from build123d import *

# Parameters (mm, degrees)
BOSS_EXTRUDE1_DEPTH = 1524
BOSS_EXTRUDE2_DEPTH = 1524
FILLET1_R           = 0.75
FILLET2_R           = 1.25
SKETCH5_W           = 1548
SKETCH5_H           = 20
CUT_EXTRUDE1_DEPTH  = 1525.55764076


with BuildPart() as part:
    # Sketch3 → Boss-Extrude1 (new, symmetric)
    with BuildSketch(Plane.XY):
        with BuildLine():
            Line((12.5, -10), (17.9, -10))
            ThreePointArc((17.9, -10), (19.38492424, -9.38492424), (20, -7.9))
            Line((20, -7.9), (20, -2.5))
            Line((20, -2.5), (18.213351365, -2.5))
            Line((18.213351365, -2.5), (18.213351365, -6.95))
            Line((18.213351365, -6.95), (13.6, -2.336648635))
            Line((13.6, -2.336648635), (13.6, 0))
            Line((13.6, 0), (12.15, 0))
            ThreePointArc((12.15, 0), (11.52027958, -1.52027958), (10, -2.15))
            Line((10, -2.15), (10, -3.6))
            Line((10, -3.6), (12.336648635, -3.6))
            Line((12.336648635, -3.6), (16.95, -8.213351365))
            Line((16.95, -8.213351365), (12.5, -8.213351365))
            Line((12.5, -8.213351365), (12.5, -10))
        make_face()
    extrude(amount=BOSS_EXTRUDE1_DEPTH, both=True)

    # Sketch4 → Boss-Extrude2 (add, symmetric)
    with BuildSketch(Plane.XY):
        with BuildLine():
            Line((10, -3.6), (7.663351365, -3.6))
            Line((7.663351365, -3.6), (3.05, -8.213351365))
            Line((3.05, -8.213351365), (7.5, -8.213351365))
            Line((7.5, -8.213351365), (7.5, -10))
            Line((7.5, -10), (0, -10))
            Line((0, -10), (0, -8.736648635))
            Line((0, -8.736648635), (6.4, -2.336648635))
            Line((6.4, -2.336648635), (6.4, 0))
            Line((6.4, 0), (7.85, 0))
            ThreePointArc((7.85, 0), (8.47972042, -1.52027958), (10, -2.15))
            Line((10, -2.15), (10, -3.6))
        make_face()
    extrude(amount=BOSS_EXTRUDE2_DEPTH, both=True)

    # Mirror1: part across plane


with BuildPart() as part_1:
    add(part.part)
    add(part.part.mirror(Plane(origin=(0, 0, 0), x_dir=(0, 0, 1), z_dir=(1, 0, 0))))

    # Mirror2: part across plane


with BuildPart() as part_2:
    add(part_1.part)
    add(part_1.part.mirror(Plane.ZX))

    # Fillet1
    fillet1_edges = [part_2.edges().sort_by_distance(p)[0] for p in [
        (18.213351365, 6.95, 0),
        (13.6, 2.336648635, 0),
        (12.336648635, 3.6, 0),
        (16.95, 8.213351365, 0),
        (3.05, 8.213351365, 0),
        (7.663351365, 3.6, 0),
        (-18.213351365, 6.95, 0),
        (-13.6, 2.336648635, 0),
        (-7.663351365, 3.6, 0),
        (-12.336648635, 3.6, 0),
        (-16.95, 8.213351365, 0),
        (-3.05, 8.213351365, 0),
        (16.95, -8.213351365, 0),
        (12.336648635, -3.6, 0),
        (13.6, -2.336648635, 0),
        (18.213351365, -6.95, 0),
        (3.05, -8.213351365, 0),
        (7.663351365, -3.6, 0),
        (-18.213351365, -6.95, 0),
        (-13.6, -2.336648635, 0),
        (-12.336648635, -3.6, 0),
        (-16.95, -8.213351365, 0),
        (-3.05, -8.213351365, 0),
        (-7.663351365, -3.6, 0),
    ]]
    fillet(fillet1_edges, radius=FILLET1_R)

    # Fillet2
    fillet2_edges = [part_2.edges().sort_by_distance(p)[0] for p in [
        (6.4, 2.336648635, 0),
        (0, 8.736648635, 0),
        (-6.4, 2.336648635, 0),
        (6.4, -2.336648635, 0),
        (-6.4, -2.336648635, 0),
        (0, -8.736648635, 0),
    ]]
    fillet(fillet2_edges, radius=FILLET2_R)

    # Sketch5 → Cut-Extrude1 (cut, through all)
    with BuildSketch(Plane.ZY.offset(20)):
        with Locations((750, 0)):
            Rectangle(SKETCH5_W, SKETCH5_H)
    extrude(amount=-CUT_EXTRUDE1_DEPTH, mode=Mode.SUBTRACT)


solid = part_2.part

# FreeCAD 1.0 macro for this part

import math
import FreeCAD as App
import Part
import Sketcher
Q = App.Units.Quantity


def edges_at(feature, points):
    """Names of the edges that pass closest to the given points."""
    edges = feature.Shape.Edges
    near = lambda p: min(range(len(edges)), key=lambda i: edges[i].distToShape(Part.Vertex(*p))[0])
    return sorted({f"Edge{near(p) + 1}" for p in points})

doc = App.newDocument("Part")
params = doc.addObject("Spreadsheet::Sheet", "Params")
for row, (alias, value) in enumerate([
    ("sketch1_radius", "2.1 mm"),
    ("sketch1_radius2", "2.15 mm"),
    ("sketch1_width", "5.4 mm"),
    ("sketch1_width2", "1.45 mm"),
    ("sketch1_width3", "4.45 mm"),
    ("pad1_length", "3048 mm"),
    ("sketch2_radius", "2.15 mm"),
    ("sketch2_width", "7.5 mm"),
    ("sketch2_width2", "1.45 mm"),
    ("sketch2_width3", "4.45 mm"),
    ("pad2_length", "3048 mm"),
    ("fillet_radius", "0.75 mm"),
    ("fillet2_radius", "1.25 mm"),
    ("sketch3_width", "20 mm"),
    ("sketch3_height", "1548 mm"),
], start=1):
    params.set(f"A{row}", alias)
    params.set(f"B{row}", "=" + value)
    params.setAlias(f"B{row}", alias)

body = doc.addObject("PartDesign::Body", "Body")

sketch1 = doc.addObject("Sketcher::SketchObject", "Sketch")
body.addObject(sketch1)
sketch1.AttachmentSupport = (doc.XY_Plane, [""])
sketch1.MapMode = "FlatFace"
sketch1.addGeometry([
    Part.LineSegment(App.Vector(12.5, -10, 0), App.Vector(17.9, -10, 0)),
    Part.ArcOfCircle(Part.Circle(App.Vector(17.9, -7.9, 0), App.Vector(0, 0, 1), 2.1), math.radians(-90), math.radians(0)),
    Part.LineSegment(App.Vector(20, -7.9, 0), App.Vector(20, -2.5, 0)),
    Part.LineSegment(App.Vector(20, -2.5, 0), App.Vector(18.2, -2.5, 0)),
    Part.LineSegment(App.Vector(18.2, -2.5, 0), App.Vector(18.2, -7, 0)),
    Part.LineSegment(App.Vector(18.2, -7, 0), App.Vector(13.6, -2.3, 0)),
    Part.LineSegment(App.Vector(13.6, -2.3, 0), App.Vector(13.6, 0, 0)),
    Part.LineSegment(App.Vector(13.6, 0, 0), App.Vector(12.2, 0, 0)),
    Part.ArcOfCircle(Part.Circle(App.Vector(10, 0, 0), App.Vector(0, 0, 1), 2.1), math.radians(-90), math.radians(0)),
    Part.LineSegment(App.Vector(10, -2.1, 0), App.Vector(10, -3.6, 0)),
    Part.LineSegment(App.Vector(10, -3.6, 0), App.Vector(12.3, -3.6, 0)),
    Part.LineSegment(App.Vector(12.3, -3.6, 0), App.Vector(16.9, -8.2, 0)),
    Part.LineSegment(App.Vector(16.9, -8.2, 0), App.Vector(12.5, -8.2, 0)),
    Part.LineSegment(App.Vector(12.5, -8.2, 0), App.Vector(12.5, -10, 0)),
], False)
sketch1.addConstraint([
    Sketcher.Constraint("Tangent", 0, 2, 1, 1),
    Sketcher.Constraint("Tangent", 1, 2, 2, 1),
    Sketcher.Constraint("Coincident", 2, 2, 3, 1),
    Sketcher.Constraint("Coincident", 3, 2, 4, 1),
    Sketcher.Constraint("Coincident", 4, 2, 5, 1),
    Sketcher.Constraint("Coincident", 5, 2, 6, 1),
    Sketcher.Constraint("Coincident", 6, 2, 7, 1),
    Sketcher.Constraint("Coincident", 7, 2, 8, 2),
    Sketcher.Constraint("Coincident", 8, 1, 9, 1),
    Sketcher.Constraint("Coincident", 9, 2, 10, 1),
    Sketcher.Constraint("Coincident", 10, 2, 11, 1),
    Sketcher.Constraint("Coincident", 11, 2, 12, 1),
    Sketcher.Constraint("Coincident", 12, 2, 13, 1),
    Sketcher.Constraint("Coincident", 13, 2, 0, 1),
    Sketcher.Constraint("Horizontal", 0),
    Sketcher.Constraint("Vertical", 2),
    Sketcher.Constraint("Horizontal", 3),
    Sketcher.Constraint("Vertical", 4),
    Sketcher.Constraint("Vertical", 6),
    Sketcher.Constraint("Horizontal", 7),
    Sketcher.Constraint("Vertical", 9),
    Sketcher.Constraint("Horizontal", 10),
    Sketcher.Constraint("Horizontal", 12),
    Sketcher.Constraint("Vertical", 13),
    Sketcher.Constraint("PointOnObject", 8, 3, -1),
    Sketcher.Constraint("PointOnObject", 6, 2, -1),
    Sketcher.Constraint("Parallel", 5, 11),
    Sketcher.Constraint("Equal", 0, 2),
    Sketcher.Constraint("Equal", 12, 4),
    Sketcher.Constraint("Equal", 10, 6),
    Sketcher.Constraint("Equal", 7, 9),
    Sketcher.Constraint("Equal", 3, 13),
    Sketcher.Constraint("Equal", 5, 11),
    Sketcher.Constraint("Radius", 1, 2.1),
    Sketcher.Constraint("Angle", 5, Q("135 deg")),
    Sketcher.Constraint("Radius", 8, 2.15),
    Sketcher.Constraint("DistanceX", 0, 1, 0, 2, 5.4),
    Sketcher.Constraint("DistanceX", -1, 1, 8, 3, 10.0),
    Sketcher.Constraint("DistanceY", 0, 2, -1, 1, 10.0),
    Sketcher.Constraint("DistanceX", 7, 2, 7, 1, 1.45),
    Sketcher.Constraint("DistanceX", 12, 2, 12, 1, 4.45),
    Sketcher.Constraint("DistanceX", 3, 2, 3, 1, 1.786649),
])
sketch1.setExpression("Constraints[33]", "Params.sketch1_radius")
sketch1.setExpression("Constraints[35]", "Params.sketch1_radius2")
sketch1.setExpression("Constraints[36]", "Params.sketch1_width")
sketch1.setExpression("Constraints[39]", "Params.sketch1_width2")
sketch1.setExpression("Constraints[40]", "Params.sketch1_width3")
pad1 = doc.addObject("PartDesign::Pad", "Pad")
body.addObject(pad1)
pad1.Profile = sketch1
pad1.setExpression("Length", "Params.pad1_length")
pad1.Midplane = True

sketch2 = doc.addObject("Sketcher::SketchObject", "Sketch001")
body.addObject(sketch2)
sketch2.AttachmentSupport = (doc.XY_Plane, [""])
sketch2.MapMode = "FlatFace"
sketch2.addGeometry([
    Part.LineSegment(App.Vector(7.7, -3.6, 0), App.Vector(10, -3.6, 0)),
    Part.LineSegment(App.Vector(10, -3.6, 0), App.Vector(10, -2.1, 0)),
    Part.ArcOfCircle(Part.Circle(App.Vector(10, 0, 0), App.Vector(0, 0, 1), 2.1), math.radians(180), math.radians(270)),
    Part.LineSegment(App.Vector(7.8, 0, 0), App.Vector(6.4, 0, 0)),
    Part.LineSegment(App.Vector(6.4, 0, 0), App.Vector(6.4, -2.3, 0)),
    Part.LineSegment(App.Vector(6.4, -2.3, 0), App.Vector(0, -8.7, 0)),
    Part.LineSegment(App.Vector(0, -8.7, 0), App.Vector(0, -10, 0)),
    Part.LineSegment(App.Vector(0, -10, 0), App.Vector(7.5, -10, 0)),
    Part.LineSegment(App.Vector(7.5, -10, 0), App.Vector(7.5, -8.2, 0)),
    Part.LineSegment(App.Vector(7.5, -8.2, 0), App.Vector(3, -8.2, 0)),
    Part.LineSegment(App.Vector(3, -8.2, 0), App.Vector(7.7, -3.6, 0)),
], False)
sketch2.addConstraint([
    Sketcher.Constraint("Coincident", 0, 2, 1, 1),
    Sketcher.Constraint("Coincident", 1, 2, 2, 2),
    Sketcher.Constraint("Coincident", 2, 1, 3, 1),
    Sketcher.Constraint("Coincident", 3, 2, 4, 1),
    Sketcher.Constraint("Coincident", 4, 2, 5, 1),
    Sketcher.Constraint("Coincident", 5, 2, 6, 1),
    Sketcher.Constraint("Coincident", 6, 2, 7, 1),
    Sketcher.Constraint("Coincident", 7, 2, 8, 1),
    Sketcher.Constraint("Coincident", 8, 2, 9, 1),
    Sketcher.Constraint("Coincident", 9, 2, 10, 1),
    Sketcher.Constraint("Coincident", 10, 2, 0, 1),
    Sketcher.Constraint("Horizontal", 0),
    Sketcher.Constraint("Vertical", 1),
    Sketcher.Constraint("Horizontal", 3),
    Sketcher.Constraint("Vertical", 4),
    Sketcher.Constraint("Vertical", 6),
    Sketcher.Constraint("Horizontal", 7),
    Sketcher.Constraint("Vertical", 8),
    Sketcher.Constraint("Horizontal", 9),
    Sketcher.Constraint("PointOnObject", 2, 3, -1),
    Sketcher.Constraint("PointOnObject", 2, 1, -1),
    Sketcher.Constraint("PointOnObject", 5, 2, -2),
    Sketcher.Constraint("Parallel", 5, 10),
    Sketcher.Constraint("Vertical", 2, 3, 0, 2),
    Sketcher.Constraint("Equal", 3, 1),
    Sketcher.Constraint("Equal", 0, 4),
    Sketcher.Constraint("Angle", 5, Q("-135 deg")),
    Sketcher.Constraint("Radius", 2, 2.15),
    Sketcher.Constraint("DistanceX", 7, 1, 7, 2, 7.5),
    Sketcher.Constraint("DistanceX", -1, 1, 2, 3, 10.0),
    Sketcher.Constraint("DistanceY", 6, 2, -1, 1, 10.0),
    Sketcher.Constraint("DistanceX", 3, 2, 3, 1, 1.45),
    Sketcher.Constraint("DistanceX", 9, 2, 9, 1, 4.45),
    Sketcher.Constraint("DistanceX", 0, 1, 0, 2, 2.336649),
])
sketch2.setExpression("Constraints[27]", "Params.sketch2_radius")
sketch2.setExpression("Constraints[28]", "Params.sketch2_width")
sketch2.setExpression("Constraints[31]", "Params.sketch2_width2")
sketch2.setExpression("Constraints[32]", "Params.sketch2_width3")
pad2 = doc.addObject("PartDesign::Pad", "Pad001")
body.addObject(pad2)
pad2.Profile = sketch2
pad2.setExpression("Length", "Params.pad2_length")
pad2.Midplane = True
body2 = doc.addObject("PartDesign::Body", "Body001")
doc.recompute()

body2.BaseFeature = body
doc.recompute()

mirroring = doc.addObject("Part::Mirroring", "Mirroring")
mirroring.Source = body
mirroring.Base = App.Vector(0, 0, 0)
mirroring.Normal = App.Vector(1, 0, 0)
body3 = doc.addObject("PartDesign::Body", "Body002")
body3.BaseFeature = mirroring
boolean = doc.addObject("PartDesign::Boolean", "Boolean")
body2.addObject(boolean)
boolean.Type = "Fuse"
boolean.addObjects([body3])
doc.recompute()
body4 = doc.addObject("PartDesign::Body", "Body003")
doc.recompute()

body4.BaseFeature = body2
doc.recompute()

mirroring2 = doc.addObject("Part::Mirroring", "Mirroring001")
mirroring2.Source = body2
mirroring2.Base = App.Vector(0, 0, 0)
mirroring2.Normal = App.Vector(0, 1, 0)
body5 = doc.addObject("PartDesign::Body", "Body004")
body5.BaseFeature = mirroring2
boolean2 = doc.addObject("PartDesign::Boolean", "Boolean001")
body4.addObject(boolean2)
boolean2.Type = "Fuse"
boolean2.addObjects([body5])
doc.recompute()

fillet = doc.addObject("PartDesign::Fillet", "Fillet")
body4.addObject(fillet)
fillet.Base = (boolean2, edges_at(boolean2, [
    (18.213, 6.95, 0),
    (13.6, 2.337, 0),
    (12.337, 3.6, 0),
    (16.95, 8.213, 0),
    (3.05, 8.213, 0),
    (7.663, 3.6, 0),
    (-18.213, 6.95, 0),
    (-13.6, 2.337, 0),
    (-7.663, 3.6, 0),
    (-12.337, 3.6, 0),
    (-16.95, 8.213, 0),
    (-3.05, 8.213, 0),
    (16.95, -8.213, 0),
    (12.337, -3.6, 0),
    (13.6, -2.337, 0),
    (18.213, -6.95, 0),
    (3.05, -8.213, 0),
    (7.663, -3.6, 0),
    (-18.213, -6.95, 0),
    (-13.6, -2.337, 0),
    (-12.337, -3.6, 0),
    (-16.95, -8.213, 0),
    (-3.05, -8.213, 0),
    (-7.663, -3.6, 0),
]))
fillet.setExpression("Radius", "Params.fillet_radius")
doc.recompute()

fillet2 = doc.addObject("PartDesign::Fillet", "Fillet001")
body4.addObject(fillet2)
fillet2.Base = (fillet, edges_at(fillet, [
    (6.4, 2.337, 0),
    (0, 8.737, 0),
    (-6.4, 2.337, 0),
    (6.4, -2.337, 0),
    (-6.4, -2.337, 0),
    (0, -8.737, 0),
]))
fillet2.setExpression("Radius", "Params.fillet2_radius")

sketch3 = doc.addObject("Sketcher::SketchObject", "Sketch002")
body4.addObject(sketch3)
sketch3.AttachmentSupport = (doc.getObject("YZ_Plane003"), [""])
sketch3.MapMode = "FlatFace"
sketch3.AttachmentOffset = App.Placement(App.Vector(0, 0, -20), App.Rotation())
sketch3.addGeometry([
    Part.LineSegment(App.Vector(10, -24, 0), App.Vector(-10, -24, 0)),
    Part.LineSegment(App.Vector(-10, -24, 0), App.Vector(-10, 1524, 0)),
    Part.LineSegment(App.Vector(-10, 1524, 0), App.Vector(10, 1524, 0)),
    Part.LineSegment(App.Vector(10, 1524, 0), App.Vector(10, -24, 0)),
], False)
sketch3.addConstraint([
    Sketcher.Constraint("Coincident", 0, 2, 1, 1),
    Sketcher.Constraint("Coincident", 1, 2, 2, 1),
    Sketcher.Constraint("Coincident", 2, 2, 3, 1),
    Sketcher.Constraint("Coincident", 3, 2, 0, 1),
    Sketcher.Constraint("Horizontal", 0),
    Sketcher.Constraint("Vertical", 1),
    Sketcher.Constraint("Horizontal", 2),
    Sketcher.Constraint("Vertical", 3),
    Sketcher.Constraint("DistanceX", 0, 2, 0, 1, 20.0),
    Sketcher.Constraint("DistanceY", 1, 1, 1, 2, 1548.0),
    Sketcher.Constraint("DistanceX", 0, 2, -1, 1, 10.0),
    Sketcher.Constraint("DistanceY", 0, 2, -1, 1, 24.0),
])
sketch3.setExpression("Constraints[8]", "Params.sketch3_width")
sketch3.setExpression("Constraints[9]", "Params.sketch3_height")
pocket1 = doc.addObject("PartDesign::Pocket", "Pocket")
body4.addObject(pocket1)
pocket1.Profile = sketch3
pocket1.Type = "ThroughAll"
pocket1.Reversed = True
mirroring.Visibility = False
mirroring2.Visibility = False

doc.recompute()
